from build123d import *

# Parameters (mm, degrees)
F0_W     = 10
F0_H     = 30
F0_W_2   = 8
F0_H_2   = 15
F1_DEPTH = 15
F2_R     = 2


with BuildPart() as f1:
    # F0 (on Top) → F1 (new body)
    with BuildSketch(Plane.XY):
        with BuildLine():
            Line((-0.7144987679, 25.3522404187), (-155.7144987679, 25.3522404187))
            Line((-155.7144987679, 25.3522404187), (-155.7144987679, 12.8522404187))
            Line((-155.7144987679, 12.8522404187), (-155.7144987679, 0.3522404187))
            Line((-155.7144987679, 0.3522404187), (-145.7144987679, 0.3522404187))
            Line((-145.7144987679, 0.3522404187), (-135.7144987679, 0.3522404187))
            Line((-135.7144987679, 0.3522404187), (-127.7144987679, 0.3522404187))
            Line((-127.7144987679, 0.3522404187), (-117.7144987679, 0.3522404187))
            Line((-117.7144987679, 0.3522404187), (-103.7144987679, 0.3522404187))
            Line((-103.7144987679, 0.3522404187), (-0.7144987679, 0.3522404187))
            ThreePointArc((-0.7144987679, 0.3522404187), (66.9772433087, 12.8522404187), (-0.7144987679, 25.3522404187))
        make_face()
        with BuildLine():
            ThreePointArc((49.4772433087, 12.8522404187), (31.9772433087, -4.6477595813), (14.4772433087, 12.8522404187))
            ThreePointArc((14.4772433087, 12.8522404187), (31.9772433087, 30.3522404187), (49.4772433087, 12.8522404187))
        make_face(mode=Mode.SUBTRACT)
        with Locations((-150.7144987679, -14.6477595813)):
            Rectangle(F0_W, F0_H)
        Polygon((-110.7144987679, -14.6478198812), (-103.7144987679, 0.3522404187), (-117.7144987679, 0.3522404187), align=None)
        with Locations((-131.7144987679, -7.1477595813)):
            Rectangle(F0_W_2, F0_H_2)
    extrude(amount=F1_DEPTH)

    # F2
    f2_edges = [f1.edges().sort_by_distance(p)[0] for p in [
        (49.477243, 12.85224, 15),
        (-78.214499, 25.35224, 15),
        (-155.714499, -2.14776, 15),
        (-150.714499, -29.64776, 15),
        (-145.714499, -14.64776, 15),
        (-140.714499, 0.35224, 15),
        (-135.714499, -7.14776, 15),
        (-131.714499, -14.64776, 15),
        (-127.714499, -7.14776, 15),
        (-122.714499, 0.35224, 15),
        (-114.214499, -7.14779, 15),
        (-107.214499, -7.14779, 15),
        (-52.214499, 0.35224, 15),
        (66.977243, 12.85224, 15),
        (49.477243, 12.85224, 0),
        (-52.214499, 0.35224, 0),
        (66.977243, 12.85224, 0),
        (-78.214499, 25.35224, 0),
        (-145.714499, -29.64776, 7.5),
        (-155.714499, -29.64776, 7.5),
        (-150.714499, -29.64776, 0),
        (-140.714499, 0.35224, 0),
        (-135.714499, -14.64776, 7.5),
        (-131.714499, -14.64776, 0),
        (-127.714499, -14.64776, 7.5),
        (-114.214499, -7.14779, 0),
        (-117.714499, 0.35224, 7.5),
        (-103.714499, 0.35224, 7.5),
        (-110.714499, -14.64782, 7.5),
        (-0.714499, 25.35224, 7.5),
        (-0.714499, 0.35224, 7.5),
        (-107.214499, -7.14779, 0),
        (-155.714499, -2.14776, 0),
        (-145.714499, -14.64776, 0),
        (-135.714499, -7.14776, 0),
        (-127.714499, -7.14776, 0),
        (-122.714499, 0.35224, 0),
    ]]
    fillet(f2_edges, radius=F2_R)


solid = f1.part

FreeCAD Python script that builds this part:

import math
import FreeCAD as App
import Part
import Sketcher
Q = App.Units.Quantity


def edges_at(feature, points):
    """Names of the edges that pass closest to the given points."""
    edges = feature.Shape.Edges
    near = lambda p: min(range(len(edges)), key=lambda i: edges[i].distToShape(Part.Vertex(*p))[0])
    return sorted({f"Edge{near(p) + 1}" for p in points})

doc = App.newDocument("Part")
body = doc.addObject("PartDesign::Body", "Body")

sketch1 = body.newObject("Sketcher::SketchObject", "Sketch")
sketch1.AttachmentSupport = (doc.getObject("XY_Plane"), [""])
sketch1.MapMode = "FlatFace"
sketch1.addGeometry([
    Part.LineSegment(App.Vector(-1, 25, 0), App.Vector(-156, 25, 0)),
    Part.LineSegment(App.Vector(-156, 25, 0), App.Vector(-156, -30, 0)),
    Part.LineSegment(App.Vector(-156, -30, 0), App.Vector(-146, -30, 0)),
    Part.LineSegment(App.Vector(-146, -30, 0), App.Vector(-146, 0, 0)),
    Part.LineSegment(App.Vector(-146, 0, 0), App.Vector(-136, 0, 0)),
    Part.LineSegment(App.Vector(-136, 0, 0), App.Vector(-136, -15, 0)),
    Part.LineSegment(App.Vector(-136, -15, 0), App.Vector(-128, -15, 0)),
    Part.LineSegment(App.Vector(-128, -15, 0), App.Vector(-128, 0, 0)),
    Part.LineSegment(App.Vector(-128, 0, 0), App.Vector(-118, 0, 0)),
    Part.LineSegment(App.Vector(-118, 0, 0), App.Vector(-111, -15, 0)),
    Part.LineSegment(App.Vector(-111, -15, 0), App.Vector(-104, 0, 0)),
    Part.LineSegment(App.Vector(-104, 0, 0), App.Vector(-1, 0, 0)),
    Part.ArcOfCircle(Part.Circle(App.Vector(32, 13, 0), App.Vector(0, 0, 1), 35), math.radians(-159), math.radians(159)),
    Part.Circle(App.Vector(32, 13, 0), App.Vector(0, 0, 1), 18),
], False)
sketch1.addConstraint([
    Sketcher.Constraint("Coincident", 0, 2, 1, 1),
    Sketcher.Constraint("Coincident", 1, 2, 2, 1),
    Sketcher.Constraint("Coincident", 2, 2, 3, 1),
    Sketcher.Constraint("Coincident", 3, 2, 4, 1),
    Sketcher.Constraint("Coincident", 4, 2, 5, 1),
    Sketcher.Constraint("Coincident", 5, 2, 6, 1),
    Sketcher.Constraint("Coincident", 6, 2, 7, 1),
    Sketcher.Constraint("Coincident", 7, 2, 8, 1),
    Sketcher.Constraint("Coincident", 8, 2, 9, 1),
    Sketcher.Constraint("Coincident", 9, 2, 10, 1),
    Sketcher.Constraint("Coincident", 10, 2, 11, 1),
    Sketcher.Constraint("Coincident", 11, 2, 12, 1),
    Sketcher.Constraint("Coincident", 12, 2, 0, 1),
    Sketcher.Constraint("Horizontal", 0),
    Sketcher.Constraint("Vertical", 1),
    Sketcher.Constraint("Horizontal", 2),
    Sketcher.Constraint("Vertical", 3),
    Sketcher.Constraint("Horizontal", 4),
    Sketcher.Constraint("Vertical", 5),
    Sketcher.Constraint("Horizontal", 6),
    Sketcher.Constraint("Vertical", 7),
    Sketcher.Constraint("Horizontal", 8),
    Sketcher.Constraint("Horizontal", 11),
    Sketcher.Constraint("Coincident", 13, 3, 12, 3),
    Sketcher.Constraint("Horizontal", 4, 2, 7, 2),
    Sketcher.Constraint("Horizontal", 8, 2, 10, 2),
    Sketcher.Constraint("Vertical", 11, 2, 12, 2),
    Sketcher.Constraint("Equal", 2, 4),
    Sketcher.Constraint("Equal", 4, 8),
    Sketcher.Constraint("Equal", 9, 10),
    Sketcher.Constraint("Diameter", 13, Q("35 mm")),
    Sketcher.Constraint("Radius", 12, Q("35 mm")),
    Sketcher.Constraint("DistanceX", 0, 2, 0, 1, Q("155 mm")),
    Sketcher.Constraint("DistanceX", 2, 1, 2, 2, Q("10 mm")),
    Sketcher.Constraint("DistanceX", 6, 1, 6, 2, Q("8 mm")),
    Sketcher.Constraint("DistanceX", 11, 1, 11, 2, Q("103 mm")),
    Sketcher.Constraint("DistanceY", 1, 2, 1, 1, Q("55 mm")),
    Sketcher.Constraint("DistanceY", 3, 1, 3, 2, Q("30 mm")),
    Sketcher.Constraint("DistanceY", 5, 2, 5, 1, Q("15 mm")),
    Sketcher.Constraint("Distance", 9, Q("16.553 mm")),
    Sketcher.Constraint("DistanceX", 0, 2, -1, 1, Q("155.714499 mm")),
    Sketcher.Constraint("DistanceY", -1, 1, 12, 3, Q("12.85224 mm")),
])
pad1 = body.newObject("PartDesign::Pad", "Pad")
pad1.Profile = sketch1
pad1.Length = 15
doc.recompute()

fillet = body.newObject("PartDesign::Fillet", "Fillet")
fillet.Base = (pad1, edges_at(pad1, [
    (49.477, 12.852, 15),
    (-78.214, 25.352, 15),
    (-155.714, -2.148, 15),
    (-150.714, -29.648, 15),
    (-145.714, -14.648, 15),
    (-140.714, 0.352, 15),
    (-135.714, -7.148, 15),
    (-131.714, -14.648, 15),
    (-127.714, -7.148, 15),
    (-122.714, 0.352, 15),
    (-114.214, -7.148, 15),
    (-107.214, -7.148, 15),
    (-52.214, 0.352, 15),
    (66.977, 12.852, 15),
    (49.477, 12.852, 0),
    (-52.214, 0.352, 0),
    (66.977, 12.852, 0),
    (-78.214, 25.352, 0),
    (-145.714, -29.648, 7.5),
    (-155.714, -29.648, 7.5),
    (-150.714, -29.648, 0),
    (-140.714, 0.352, 0),
    (-135.714, -14.648, 7.5),
    (-131.714, -14.648, 0),
    (-127.714, -14.648, 7.5),
    (-114.214, -7.148, 0),
    (-117.714, 0.352, 7.5),
    (-103.714, 0.352, 7.5),
    (-110.714, -14.648, 7.5),
    (-0.714, 25.352, 7.5),
    (-0.714, 0.352, 7.5),
    (-107.214, -7.148, 0),
    (-155.714, -2.148, 0),
    (-145.714, -14.648, 0),
    (-135.714, -7.148, 0),
    (-127.714, -7.148, 0),
    (-122.714, 0.352, 0),
]))
fillet.Radius = 2

doc.recompute()
